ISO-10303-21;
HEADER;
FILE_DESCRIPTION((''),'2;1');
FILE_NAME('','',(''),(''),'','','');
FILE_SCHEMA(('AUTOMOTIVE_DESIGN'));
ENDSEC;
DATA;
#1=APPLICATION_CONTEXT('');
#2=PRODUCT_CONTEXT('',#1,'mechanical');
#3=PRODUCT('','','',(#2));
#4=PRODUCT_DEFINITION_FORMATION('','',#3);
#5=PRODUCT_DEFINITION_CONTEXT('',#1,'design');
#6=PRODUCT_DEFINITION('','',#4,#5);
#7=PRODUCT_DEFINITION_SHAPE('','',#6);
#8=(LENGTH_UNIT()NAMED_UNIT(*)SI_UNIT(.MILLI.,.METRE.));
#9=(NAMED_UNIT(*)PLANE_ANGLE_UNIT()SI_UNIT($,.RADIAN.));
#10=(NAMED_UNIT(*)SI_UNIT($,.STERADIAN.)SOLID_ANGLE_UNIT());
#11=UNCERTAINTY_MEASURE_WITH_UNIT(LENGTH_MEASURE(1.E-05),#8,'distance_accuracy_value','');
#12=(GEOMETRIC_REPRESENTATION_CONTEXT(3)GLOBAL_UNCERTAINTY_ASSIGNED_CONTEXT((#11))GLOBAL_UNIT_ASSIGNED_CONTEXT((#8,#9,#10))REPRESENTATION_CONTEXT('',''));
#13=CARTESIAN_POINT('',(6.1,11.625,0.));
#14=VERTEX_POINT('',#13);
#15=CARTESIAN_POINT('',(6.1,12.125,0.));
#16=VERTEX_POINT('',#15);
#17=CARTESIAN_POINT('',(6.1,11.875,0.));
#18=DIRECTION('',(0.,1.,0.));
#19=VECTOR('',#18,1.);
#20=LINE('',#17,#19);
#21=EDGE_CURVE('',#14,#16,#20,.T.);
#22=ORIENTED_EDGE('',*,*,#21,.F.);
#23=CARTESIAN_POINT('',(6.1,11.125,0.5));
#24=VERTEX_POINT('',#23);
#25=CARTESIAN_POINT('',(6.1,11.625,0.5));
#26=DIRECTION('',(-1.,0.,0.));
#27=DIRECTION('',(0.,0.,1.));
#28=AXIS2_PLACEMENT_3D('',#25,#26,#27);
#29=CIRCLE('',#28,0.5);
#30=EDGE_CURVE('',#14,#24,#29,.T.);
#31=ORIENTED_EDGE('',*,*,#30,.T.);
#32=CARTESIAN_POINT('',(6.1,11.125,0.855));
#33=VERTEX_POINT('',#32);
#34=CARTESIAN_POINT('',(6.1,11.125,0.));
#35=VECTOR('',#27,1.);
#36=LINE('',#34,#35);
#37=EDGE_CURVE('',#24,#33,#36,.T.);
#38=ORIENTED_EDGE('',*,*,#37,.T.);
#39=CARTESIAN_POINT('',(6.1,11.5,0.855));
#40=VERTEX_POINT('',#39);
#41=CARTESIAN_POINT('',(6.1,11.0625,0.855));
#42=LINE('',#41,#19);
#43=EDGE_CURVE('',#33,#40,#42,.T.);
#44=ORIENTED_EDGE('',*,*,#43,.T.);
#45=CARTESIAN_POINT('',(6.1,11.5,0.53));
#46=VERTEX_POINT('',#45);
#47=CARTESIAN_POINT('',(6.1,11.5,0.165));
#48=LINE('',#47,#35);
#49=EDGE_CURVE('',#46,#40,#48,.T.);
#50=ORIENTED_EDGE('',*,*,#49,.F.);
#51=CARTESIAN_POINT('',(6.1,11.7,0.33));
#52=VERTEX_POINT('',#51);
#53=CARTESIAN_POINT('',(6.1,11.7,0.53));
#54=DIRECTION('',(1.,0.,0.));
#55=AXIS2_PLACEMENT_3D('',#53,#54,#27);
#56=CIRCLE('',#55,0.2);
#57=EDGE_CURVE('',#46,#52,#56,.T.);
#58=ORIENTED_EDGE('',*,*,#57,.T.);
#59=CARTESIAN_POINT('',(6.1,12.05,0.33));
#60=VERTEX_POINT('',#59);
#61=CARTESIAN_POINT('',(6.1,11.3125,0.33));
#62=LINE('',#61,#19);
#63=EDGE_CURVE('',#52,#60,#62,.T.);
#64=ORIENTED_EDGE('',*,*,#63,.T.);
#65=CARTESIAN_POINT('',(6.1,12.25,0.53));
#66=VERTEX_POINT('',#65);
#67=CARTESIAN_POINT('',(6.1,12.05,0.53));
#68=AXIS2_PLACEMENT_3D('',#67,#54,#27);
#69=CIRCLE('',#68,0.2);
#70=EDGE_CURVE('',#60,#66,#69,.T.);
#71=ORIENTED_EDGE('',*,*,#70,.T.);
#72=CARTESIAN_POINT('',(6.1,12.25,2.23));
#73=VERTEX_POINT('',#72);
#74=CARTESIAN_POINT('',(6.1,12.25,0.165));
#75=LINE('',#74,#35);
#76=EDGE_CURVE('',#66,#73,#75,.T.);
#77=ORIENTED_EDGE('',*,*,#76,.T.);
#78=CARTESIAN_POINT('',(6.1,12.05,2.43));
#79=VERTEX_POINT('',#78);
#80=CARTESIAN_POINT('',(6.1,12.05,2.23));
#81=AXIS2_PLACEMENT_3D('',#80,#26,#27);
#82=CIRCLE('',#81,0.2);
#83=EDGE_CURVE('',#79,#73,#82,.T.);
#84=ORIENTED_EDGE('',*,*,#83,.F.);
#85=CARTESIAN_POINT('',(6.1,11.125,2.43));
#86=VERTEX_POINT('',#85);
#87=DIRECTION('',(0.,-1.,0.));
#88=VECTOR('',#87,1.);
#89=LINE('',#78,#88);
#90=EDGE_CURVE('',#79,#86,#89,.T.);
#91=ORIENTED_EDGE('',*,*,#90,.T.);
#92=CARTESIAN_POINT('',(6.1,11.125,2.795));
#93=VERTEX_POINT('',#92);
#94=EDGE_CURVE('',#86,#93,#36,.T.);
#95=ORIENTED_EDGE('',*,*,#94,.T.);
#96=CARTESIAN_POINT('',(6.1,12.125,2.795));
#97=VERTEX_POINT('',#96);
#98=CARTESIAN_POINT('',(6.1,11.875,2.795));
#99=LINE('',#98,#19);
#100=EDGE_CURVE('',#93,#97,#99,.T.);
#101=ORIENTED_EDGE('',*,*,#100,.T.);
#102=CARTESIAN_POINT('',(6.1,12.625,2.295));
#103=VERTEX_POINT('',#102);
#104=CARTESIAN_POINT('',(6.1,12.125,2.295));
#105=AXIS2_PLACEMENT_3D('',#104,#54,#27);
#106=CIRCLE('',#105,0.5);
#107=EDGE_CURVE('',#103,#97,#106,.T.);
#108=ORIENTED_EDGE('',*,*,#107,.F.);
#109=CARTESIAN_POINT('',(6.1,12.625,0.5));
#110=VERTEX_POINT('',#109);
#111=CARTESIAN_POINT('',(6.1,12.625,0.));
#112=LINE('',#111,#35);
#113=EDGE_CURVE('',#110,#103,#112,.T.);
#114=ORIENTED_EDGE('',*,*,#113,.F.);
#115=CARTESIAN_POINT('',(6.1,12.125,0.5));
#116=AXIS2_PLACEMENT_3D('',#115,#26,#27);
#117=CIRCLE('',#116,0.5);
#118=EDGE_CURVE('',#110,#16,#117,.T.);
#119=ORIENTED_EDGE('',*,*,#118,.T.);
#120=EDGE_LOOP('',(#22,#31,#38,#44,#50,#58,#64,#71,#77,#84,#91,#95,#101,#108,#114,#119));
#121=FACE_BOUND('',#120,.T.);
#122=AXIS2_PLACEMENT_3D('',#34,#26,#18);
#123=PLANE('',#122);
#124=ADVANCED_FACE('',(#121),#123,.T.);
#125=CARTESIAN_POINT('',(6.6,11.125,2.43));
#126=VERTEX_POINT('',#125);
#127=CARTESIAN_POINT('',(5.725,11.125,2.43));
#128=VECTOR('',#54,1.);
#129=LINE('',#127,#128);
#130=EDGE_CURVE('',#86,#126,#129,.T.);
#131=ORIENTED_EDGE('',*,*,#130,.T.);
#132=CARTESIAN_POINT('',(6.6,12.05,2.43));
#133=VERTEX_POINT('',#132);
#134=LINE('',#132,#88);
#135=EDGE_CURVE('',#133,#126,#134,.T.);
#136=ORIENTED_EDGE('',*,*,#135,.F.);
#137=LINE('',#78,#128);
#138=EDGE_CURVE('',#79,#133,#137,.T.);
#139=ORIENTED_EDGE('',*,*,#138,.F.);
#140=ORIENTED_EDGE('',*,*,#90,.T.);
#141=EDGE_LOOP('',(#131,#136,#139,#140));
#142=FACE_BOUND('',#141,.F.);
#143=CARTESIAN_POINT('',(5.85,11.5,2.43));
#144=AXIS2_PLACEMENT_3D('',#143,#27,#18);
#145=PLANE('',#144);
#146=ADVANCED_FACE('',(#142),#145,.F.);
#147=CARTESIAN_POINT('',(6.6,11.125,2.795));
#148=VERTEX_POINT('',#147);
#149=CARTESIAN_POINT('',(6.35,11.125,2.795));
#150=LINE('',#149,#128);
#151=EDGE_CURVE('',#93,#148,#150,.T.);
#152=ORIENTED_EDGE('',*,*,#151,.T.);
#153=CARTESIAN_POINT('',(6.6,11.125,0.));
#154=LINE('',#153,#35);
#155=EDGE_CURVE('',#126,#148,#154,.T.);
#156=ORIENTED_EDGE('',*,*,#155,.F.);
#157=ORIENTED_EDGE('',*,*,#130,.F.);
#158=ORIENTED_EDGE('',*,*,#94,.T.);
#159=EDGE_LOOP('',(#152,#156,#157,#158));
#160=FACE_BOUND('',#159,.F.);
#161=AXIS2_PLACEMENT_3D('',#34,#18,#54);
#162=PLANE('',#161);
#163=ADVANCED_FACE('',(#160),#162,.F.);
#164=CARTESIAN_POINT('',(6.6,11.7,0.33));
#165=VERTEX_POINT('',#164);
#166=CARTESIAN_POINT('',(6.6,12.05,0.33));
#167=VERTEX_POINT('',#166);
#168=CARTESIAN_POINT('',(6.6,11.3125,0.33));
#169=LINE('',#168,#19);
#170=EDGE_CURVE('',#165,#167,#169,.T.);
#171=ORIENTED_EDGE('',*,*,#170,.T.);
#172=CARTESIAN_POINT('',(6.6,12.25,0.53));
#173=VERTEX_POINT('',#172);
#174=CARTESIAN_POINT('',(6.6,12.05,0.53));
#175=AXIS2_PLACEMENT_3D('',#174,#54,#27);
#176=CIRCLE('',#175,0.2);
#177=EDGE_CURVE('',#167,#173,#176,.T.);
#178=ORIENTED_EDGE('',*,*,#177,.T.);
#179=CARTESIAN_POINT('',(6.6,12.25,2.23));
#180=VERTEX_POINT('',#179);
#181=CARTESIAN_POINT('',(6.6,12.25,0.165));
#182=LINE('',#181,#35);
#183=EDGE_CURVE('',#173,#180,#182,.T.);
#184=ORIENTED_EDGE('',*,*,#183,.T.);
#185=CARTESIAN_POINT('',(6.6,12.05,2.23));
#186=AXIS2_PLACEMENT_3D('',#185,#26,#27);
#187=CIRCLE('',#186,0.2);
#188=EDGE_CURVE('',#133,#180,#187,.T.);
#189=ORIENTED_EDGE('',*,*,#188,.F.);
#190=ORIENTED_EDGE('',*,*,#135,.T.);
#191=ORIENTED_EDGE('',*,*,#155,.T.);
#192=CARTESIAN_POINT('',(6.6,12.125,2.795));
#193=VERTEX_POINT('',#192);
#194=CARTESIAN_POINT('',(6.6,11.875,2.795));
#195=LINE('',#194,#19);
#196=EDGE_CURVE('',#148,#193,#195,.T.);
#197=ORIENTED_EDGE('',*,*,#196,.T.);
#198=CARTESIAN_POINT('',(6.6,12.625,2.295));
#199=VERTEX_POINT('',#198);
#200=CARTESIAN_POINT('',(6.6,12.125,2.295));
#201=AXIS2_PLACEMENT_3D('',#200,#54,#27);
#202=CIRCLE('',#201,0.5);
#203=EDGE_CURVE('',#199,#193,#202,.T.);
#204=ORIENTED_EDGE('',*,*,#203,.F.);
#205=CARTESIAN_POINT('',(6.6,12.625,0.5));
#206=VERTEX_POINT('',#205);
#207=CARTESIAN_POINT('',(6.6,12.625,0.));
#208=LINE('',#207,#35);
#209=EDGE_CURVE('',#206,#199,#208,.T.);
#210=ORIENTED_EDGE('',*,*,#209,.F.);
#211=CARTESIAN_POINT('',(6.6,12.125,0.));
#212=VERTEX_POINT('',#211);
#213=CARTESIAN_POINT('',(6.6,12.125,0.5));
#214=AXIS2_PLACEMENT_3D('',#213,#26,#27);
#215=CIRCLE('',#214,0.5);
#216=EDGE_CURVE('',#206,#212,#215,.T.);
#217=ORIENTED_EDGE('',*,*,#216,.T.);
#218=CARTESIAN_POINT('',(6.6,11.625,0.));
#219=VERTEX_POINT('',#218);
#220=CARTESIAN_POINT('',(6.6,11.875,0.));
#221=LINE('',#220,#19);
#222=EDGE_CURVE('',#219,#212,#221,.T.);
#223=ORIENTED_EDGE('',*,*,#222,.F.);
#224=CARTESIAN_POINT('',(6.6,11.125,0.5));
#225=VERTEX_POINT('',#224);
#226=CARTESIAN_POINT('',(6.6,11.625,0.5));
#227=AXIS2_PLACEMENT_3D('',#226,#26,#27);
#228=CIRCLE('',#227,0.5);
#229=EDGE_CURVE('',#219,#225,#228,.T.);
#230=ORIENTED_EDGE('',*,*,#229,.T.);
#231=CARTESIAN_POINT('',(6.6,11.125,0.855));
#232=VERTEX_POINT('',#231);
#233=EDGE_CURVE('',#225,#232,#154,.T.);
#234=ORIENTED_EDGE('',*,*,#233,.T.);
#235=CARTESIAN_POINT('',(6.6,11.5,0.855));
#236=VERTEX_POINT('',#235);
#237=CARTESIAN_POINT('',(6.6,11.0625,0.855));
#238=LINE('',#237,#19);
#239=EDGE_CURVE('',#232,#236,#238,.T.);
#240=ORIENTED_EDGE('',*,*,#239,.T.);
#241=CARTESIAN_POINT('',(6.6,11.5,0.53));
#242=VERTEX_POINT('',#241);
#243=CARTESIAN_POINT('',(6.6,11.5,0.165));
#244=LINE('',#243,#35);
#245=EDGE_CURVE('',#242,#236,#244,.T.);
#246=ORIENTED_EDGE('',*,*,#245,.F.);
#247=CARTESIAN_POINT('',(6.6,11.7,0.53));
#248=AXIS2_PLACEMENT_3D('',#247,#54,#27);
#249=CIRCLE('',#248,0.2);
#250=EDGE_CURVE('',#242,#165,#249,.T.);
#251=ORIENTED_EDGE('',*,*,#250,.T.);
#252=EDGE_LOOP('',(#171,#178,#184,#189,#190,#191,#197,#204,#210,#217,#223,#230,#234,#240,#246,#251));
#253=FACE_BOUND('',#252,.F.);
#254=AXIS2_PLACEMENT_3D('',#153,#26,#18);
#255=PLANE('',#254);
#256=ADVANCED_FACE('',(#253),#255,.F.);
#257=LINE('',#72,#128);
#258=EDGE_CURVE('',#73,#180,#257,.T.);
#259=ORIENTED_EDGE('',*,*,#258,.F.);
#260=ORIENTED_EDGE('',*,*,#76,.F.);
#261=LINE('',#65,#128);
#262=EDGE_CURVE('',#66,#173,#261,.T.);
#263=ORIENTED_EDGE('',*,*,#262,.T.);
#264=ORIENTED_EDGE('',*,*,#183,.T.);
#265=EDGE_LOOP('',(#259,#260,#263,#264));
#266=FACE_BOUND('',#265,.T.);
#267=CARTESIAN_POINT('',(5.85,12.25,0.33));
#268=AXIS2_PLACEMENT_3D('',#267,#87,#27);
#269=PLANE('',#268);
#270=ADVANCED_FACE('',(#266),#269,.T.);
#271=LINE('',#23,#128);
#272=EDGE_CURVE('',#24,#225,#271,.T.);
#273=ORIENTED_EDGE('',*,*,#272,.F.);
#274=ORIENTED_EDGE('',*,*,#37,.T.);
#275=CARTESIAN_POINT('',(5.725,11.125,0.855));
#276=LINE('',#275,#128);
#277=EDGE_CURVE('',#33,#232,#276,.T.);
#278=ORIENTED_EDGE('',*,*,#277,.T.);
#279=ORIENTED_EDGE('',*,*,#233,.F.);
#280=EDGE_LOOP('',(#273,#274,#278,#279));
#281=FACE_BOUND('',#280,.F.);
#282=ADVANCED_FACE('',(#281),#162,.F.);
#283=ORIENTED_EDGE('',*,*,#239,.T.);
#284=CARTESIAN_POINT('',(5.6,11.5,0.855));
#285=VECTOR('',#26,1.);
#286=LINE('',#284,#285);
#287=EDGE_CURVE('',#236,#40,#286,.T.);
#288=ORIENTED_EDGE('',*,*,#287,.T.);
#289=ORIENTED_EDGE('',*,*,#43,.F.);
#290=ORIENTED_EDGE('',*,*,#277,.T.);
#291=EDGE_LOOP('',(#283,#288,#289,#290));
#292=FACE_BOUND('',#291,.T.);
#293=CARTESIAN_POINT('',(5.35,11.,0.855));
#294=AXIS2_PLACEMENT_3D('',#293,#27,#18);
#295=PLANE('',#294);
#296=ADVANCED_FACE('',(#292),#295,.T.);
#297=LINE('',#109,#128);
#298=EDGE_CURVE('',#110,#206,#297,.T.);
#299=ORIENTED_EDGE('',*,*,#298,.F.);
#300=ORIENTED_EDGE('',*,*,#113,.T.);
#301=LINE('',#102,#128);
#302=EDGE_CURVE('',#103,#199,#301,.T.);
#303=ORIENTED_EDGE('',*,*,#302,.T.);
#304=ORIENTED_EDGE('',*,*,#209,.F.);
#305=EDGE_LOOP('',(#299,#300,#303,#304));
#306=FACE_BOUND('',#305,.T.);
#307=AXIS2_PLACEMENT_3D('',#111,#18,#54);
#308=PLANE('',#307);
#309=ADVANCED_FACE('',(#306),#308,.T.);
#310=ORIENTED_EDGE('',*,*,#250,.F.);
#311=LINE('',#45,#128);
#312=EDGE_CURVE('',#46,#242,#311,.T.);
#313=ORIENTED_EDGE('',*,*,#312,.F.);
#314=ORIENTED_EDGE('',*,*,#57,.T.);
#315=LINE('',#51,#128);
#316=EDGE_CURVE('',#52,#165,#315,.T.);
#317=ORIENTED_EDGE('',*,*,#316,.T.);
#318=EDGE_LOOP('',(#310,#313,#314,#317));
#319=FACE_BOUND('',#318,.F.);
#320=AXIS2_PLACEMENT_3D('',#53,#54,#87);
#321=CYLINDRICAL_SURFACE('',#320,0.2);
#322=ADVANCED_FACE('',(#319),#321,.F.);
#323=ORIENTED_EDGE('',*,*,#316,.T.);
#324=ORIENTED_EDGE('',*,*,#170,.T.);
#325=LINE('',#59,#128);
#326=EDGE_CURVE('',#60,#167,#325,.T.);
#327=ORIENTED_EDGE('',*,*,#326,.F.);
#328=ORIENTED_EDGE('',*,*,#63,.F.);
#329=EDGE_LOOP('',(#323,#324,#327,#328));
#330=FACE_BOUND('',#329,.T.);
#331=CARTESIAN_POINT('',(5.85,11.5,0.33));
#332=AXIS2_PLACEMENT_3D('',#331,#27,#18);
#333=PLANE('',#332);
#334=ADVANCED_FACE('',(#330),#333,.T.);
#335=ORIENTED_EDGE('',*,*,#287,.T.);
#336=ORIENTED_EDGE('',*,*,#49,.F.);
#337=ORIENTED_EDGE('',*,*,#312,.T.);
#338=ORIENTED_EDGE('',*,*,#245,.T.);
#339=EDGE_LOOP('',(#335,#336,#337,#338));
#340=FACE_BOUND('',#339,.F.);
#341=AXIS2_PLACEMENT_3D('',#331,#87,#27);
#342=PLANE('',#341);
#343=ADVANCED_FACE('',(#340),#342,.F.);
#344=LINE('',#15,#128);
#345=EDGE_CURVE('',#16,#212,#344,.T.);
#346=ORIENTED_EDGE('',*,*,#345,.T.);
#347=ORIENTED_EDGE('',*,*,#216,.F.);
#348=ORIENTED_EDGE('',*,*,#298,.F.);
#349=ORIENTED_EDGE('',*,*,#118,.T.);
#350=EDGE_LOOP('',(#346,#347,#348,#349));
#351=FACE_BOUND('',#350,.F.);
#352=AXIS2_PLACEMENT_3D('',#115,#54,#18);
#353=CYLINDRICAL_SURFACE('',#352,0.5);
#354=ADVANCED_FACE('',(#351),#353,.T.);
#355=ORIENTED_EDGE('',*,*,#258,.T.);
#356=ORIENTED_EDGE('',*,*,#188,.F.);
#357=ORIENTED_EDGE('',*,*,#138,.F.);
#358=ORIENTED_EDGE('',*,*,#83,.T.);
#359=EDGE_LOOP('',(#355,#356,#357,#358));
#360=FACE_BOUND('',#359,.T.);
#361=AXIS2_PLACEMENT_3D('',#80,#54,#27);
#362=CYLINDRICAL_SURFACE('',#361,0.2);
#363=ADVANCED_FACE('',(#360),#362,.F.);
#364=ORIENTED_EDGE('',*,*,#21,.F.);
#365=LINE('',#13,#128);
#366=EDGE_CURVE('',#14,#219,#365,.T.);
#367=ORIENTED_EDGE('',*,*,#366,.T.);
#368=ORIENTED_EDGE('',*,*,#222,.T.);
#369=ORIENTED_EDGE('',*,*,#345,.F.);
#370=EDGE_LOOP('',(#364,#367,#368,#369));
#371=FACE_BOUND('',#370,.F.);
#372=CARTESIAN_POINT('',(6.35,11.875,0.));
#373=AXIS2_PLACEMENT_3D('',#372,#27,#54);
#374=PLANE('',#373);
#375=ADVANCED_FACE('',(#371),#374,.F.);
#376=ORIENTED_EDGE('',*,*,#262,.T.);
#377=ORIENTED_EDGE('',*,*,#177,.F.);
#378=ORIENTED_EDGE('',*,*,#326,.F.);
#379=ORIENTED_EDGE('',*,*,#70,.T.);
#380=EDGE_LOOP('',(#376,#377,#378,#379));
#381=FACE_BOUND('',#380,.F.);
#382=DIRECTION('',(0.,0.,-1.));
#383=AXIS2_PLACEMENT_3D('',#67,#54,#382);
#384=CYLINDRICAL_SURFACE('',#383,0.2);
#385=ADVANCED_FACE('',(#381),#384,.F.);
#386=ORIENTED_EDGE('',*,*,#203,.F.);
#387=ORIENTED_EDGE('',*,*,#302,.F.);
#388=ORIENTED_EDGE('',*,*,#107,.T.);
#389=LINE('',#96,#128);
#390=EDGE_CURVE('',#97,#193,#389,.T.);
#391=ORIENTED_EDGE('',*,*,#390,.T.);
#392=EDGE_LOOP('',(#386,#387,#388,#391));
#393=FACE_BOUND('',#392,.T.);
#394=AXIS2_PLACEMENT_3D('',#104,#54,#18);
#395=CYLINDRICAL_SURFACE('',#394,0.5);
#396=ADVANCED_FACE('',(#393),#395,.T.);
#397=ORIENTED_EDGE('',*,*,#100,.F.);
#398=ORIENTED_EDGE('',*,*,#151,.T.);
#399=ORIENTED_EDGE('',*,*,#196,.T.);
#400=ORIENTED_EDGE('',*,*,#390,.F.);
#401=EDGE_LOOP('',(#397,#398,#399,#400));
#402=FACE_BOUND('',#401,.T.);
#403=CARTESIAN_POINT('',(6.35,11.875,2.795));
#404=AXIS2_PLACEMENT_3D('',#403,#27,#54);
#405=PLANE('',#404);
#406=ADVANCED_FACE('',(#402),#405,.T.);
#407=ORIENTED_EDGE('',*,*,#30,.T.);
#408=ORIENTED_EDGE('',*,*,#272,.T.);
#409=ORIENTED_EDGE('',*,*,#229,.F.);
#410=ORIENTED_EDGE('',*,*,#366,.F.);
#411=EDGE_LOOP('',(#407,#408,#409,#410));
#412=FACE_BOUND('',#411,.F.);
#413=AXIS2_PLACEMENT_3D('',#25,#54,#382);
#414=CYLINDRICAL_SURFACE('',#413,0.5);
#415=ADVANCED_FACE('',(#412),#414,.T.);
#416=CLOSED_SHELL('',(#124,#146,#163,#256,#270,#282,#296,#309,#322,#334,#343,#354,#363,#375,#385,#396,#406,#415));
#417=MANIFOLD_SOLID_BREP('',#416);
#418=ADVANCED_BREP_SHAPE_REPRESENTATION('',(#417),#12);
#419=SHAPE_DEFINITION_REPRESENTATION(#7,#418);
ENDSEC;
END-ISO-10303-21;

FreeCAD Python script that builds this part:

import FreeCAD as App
import Part
import Sketcher
Q = App.Units.Quantity


def edges_at(feature, points):
    """Names of the edges that pass closest to the given points."""
    edges = feature.Shape.Edges
    near = lambda p: min(range(len(edges)), key=lambda i: edges[i].distToShape(Part.Vertex(*p))[0])
    return sorted({f"Edge{near(p) + 1}" for p in points})


def add_polygon(sketch, points):
    """Adds a closed chain of lines whose ends are joined by coincident constraints."""
    first, n = sketch.GeometryCount, len(points)
    for a, b in zip(points, points[1:] + points[:1]):
        sketch.addGeometry(Part.LineSegment(App.Vector(*a, 0), App.Vector(*b, 0)), False)
    for i in range(n):
        sketch.addConstraint(Sketcher.Constraint("Coincident", first + i, 2, first + (i + 1) % n, 1))

doc = App.newDocument("Part")
body = doc.addObject("PartDesign::Body", "Body")

sketch1 = body.newObject("Sketcher::SketchObject", "Sketch")
sketch1.AttachmentSupport = (doc.getObject("XY_Plane"), [""])
sketch1.MapMode = "FlatFace"
add_polygon(sketch1, [(-0.2, 12.6), (-0.2, 11.1), (0.2, 11.1), (0.2, 12.6)])
sketch1.addConstraint([
    Sketcher.Constraint("Vertical", 0),
    Sketcher.Constraint("Horizontal", 1),
    Sketcher.Constraint("Vertical", 2),
    Sketcher.Constraint("Horizontal", 3),
    Sketcher.Constraint("DistanceX", 1, 1, 1, 2, Q("0.5 mm")),
    Sketcher.Constraint("DistanceY", 0, 2, 0, 1, Q("1.5 mm")),
    Sketcher.Constraint("DistanceX", 0, 2, -1, 1, Q("0.25 mm")),
    Sketcher.Constraint("DistanceY", -1, 1, 0, 2, Q("11.125 mm")),
])
pad1 = body.newObject("PartDesign::Pad", "Pad")
pad1.Profile = sketch1
pad1.Length = 2.795
doc.recompute()

fillet = body.newObject("PartDesign::Fillet", "Fillet")
fillet.Base = (pad1, edges_at(pad1, [(0, 12.625, 0)]))
fillet.Radius = 0.5
doc.recompute()

fillet2 = body.newObject("PartDesign::Fillet", "Fillet001")
fillet2.Base = (fillet, edges_at(fillet, [(0, 12.625, 2.795)]))
fillet2.Radius = 0.5
doc.recompute()

fillet3 = body.newObject("PartDesign::Fillet", "Fillet002")
fillet3.Base = (fillet2, edges_at(fillet2, [(0, 11.125, 0)]))
fillet3.Radius = 0.5

sketch2 = body.newObject("Sketcher::SketchObject", "Sketch001")
sketch2.AttachmentSupport = (doc.getObject("YZ_Plane"), [""])
sketch2.MapMode = "FlatFace"
sketch2.AttachmentOffset = App.Placement(App.Vector(0, 0, -0.5), App.Rotation())
add_polygon(sketch2, [(11.5, 2.4), (11.5, 0.3), (12.2, 0.3), (12.2, 2.4)])
sketch2.addConstraint([
    Sketcher.Constraint("Vertical", 0),
    Sketcher.Constraint("Horizontal", 1),
    Sketcher.Constraint("Vertical", 2),
    Sketcher.Constraint("Horizontal", 3),
    Sketcher.Constraint("DistanceY", 0, 2, 0, 1, Q("2.1 mm")),
    Sketcher.Constraint("DistanceX", 1, 1, 1, 2, Q("0.75 mm")),
    Sketcher.Constraint("DistanceX", -1, 1, 0, 2, Q("11.5 mm")),
    Sketcher.Constraint("DistanceY", -1, 1, 0, 2, Q("0.33 mm")),
])
pocket1 = body.newObject("PartDesign::Pocket", "Pocket")
pocket1.Profile = sketch2
pocket1.Length = 1
pocket1.Reversed = True
doc.recompute()

fillet4 = body.newObject("PartDesign::Fillet", "Fillet003")
fillet4.Base = (pocket1, edges_at(pocket1, [(0, 11.5, 0.33)]))
fillet4.Radius = 0.2
doc.recompute()

fillet5 = body.newObject("PartDesign::Fillet", "Fillet004")
fillet5.Base = (fillet4, edges_at(fillet4, [(0, 12.25, 0.33)]))
fillet5.Radius = 0.2
doc.recompute()

fillet6 = body.newObject("PartDesign::Fillet", "Fillet005")
fillet6.Base = (fillet5, edges_at(fillet5, [(0, 11.5, 2.43)]))
fillet6.Radius = 0.2
doc.recompute()

fillet7 = body.newObject("PartDesign::Fillet", "Fillet006")
fillet7.Base = (fillet6, edges_at(fillet6, [(0, 12.25, 2.43)]))
fillet7.Radius = 0.2

sketch3 = body.newObject("Sketcher::SketchObject", "Sketch002")
sketch3.AttachmentSupport = (doc.getObject("YZ_Plane"), [""])
sketch3.MapMode = "FlatFace"
sketch3.AttachmentOffset = App.Placement(App.Vector(0, 0, -1), App.Rotation())
add_polygon(sketch3, [(11, 2.4), (11, 0.9), (12, 0.9), (12, 2.4)])
sketch3.addConstraint([
    Sketcher.Constraint("Vertical", 0),
    Sketcher.Constraint("Horizontal", 1),
    Sketcher.Constraint("Vertical", 2),
    Sketcher.Constraint("Horizontal", 3),
    Sketcher.Constraint("DistanceX", 1, 1, 1, 2, Q("1 mm")),
    Sketcher.Constraint("DistanceX", -1, 1, 0, 2, Q("11 mm")),
    Sketcher.Constraint("DistanceY", 0, 2, 0, 1, Q("1.575 mm")),
    Sketcher.Constraint("DistanceY", -1, 1, 2, 2, Q("2.43 mm")),
])
pocket2 = body.newObject("PartDesign::Pocket", "Pocket001")
pocket2.Profile = sketch3
pocket2.Length = 3
pocket2.Reversed = True
body2 = doc.addObject("PartDesign::Body", "Body001")
doc.recompute()

body.Placement = App.Placement(App.Vector(6.35, 0, 0), App.Rotation(App.Vector(0, 0, 1), 0))
boolean = body2.newObject("PartDesign::Boolean", "Boolean")
boolean.Type = "Fuse"
boolean.addObjects([body])

doc.recompute()
